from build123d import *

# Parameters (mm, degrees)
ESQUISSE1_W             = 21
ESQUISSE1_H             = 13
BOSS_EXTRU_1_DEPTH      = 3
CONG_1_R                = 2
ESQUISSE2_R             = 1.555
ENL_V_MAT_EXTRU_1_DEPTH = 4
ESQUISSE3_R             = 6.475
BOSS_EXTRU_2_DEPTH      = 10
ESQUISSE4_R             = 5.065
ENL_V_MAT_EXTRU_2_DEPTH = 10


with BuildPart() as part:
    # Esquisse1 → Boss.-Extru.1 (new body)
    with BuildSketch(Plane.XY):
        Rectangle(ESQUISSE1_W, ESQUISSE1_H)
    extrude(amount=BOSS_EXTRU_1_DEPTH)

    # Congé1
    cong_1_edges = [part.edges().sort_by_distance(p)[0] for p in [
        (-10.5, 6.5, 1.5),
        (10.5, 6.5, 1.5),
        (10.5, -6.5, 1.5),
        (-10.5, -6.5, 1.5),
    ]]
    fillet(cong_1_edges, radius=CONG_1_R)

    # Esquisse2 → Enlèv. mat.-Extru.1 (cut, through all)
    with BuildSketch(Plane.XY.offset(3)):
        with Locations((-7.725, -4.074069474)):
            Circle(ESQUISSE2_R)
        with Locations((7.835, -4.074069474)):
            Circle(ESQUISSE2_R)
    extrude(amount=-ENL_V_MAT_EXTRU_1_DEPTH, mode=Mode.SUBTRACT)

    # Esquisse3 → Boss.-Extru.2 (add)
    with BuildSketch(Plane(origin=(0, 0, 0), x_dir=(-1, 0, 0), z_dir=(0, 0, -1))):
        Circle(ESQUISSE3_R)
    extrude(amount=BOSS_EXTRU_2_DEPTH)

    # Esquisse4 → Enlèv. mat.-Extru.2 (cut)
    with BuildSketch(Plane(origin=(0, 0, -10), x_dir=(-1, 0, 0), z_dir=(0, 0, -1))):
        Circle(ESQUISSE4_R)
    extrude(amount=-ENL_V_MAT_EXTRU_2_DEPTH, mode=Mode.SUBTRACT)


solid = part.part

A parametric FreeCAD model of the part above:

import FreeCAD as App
import Part
import Sketcher
Q = App.Units.Quantity


def edges_at(feature, points):
    """Names of the edges that pass closest to the given points."""
    edges = feature.Shape.Edges
    near = lambda p: min(range(len(edges)), key=lambda i: edges[i].distToShape(Part.Vertex(*p))[0])
    return sorted({f"Edge{near(p) + 1}" for p in points})

doc = App.newDocument("Part")
body = doc.addObject("PartDesign::Body", "Body")

# Sketch on XY plane
sketch1 = doc.addObject("Sketcher::SketchObject", "Sketch")
body.addObject(sketch1)
sketch1.AttachmentSupport = (doc.XY_Plane, [""])
sketch1.MapMode = "FlatFace"
sketch1.addGeometry([
    Part.LineSegment(App.Vector(-10, 6, 0), App.Vector(-10, -6, 0)),
    Part.LineSegment(App.Vector(-10, -6, 0), App.Vector(10, -6, 0)),
    Part.LineSegment(App.Vector(10, -6, 0), App.Vector(10, 6, 0)),
    Part.LineSegment(App.Vector(10, 6, 0), App.Vector(-10, 6, 0)),
], False)
sketch1.addConstraint([
    Sketcher.Constraint("Coincident", 0, 2, 1, 1),
    Sketcher.Constraint("Coincident", 1, 2, 2, 1),
    Sketcher.Constraint("Coincident", 2, 2, 3, 1),
    Sketcher.Constraint("Coincident", 3, 2, 0, 1),
    Sketcher.Constraint("Vertical", 0),
    Sketcher.Constraint("Horizontal", 1),
    Sketcher.Constraint("Vertical", 2),
    Sketcher.Constraint("Horizontal", 3),
    Sketcher.Constraint("Symmetric", 0, 2, 2, 2, -1, 1),
    Sketcher.Constraint("DistanceX", 1, 1, 1, 2, Q("21 mm")),
    Sketcher.Constraint("DistanceY", 0, 2, 0, 1, Q("13 mm")),
])
pad1 = doc.addObject("PartDesign::Pad", "Pad")
body.addObject(pad1)
pad1.Profile = sketch1
pad1.Length = 3
doc.recompute()

fillet = doc.addObject("PartDesign::Fillet", "Fillet")
body.addObject(fillet)
fillet.Base = (pad1, edges_at(pad1, [
    (-10.5, 6.5, 1.5),
    (10.5, 6.5, 1.5),
    (10.5, -6.5, 1.5),
    (-10.5, -6.5, 1.5),
]))
fillet.Radius = 2

# Sketch on XY plane
sketch2 = doc.addObject("Sketcher::SketchObject", "Sketch001")
body.addObject(sketch2)
sketch2.AttachmentSupport = (doc.XY_Plane, [""])
sketch2.MapMode = "FlatFace"
sketch2.AttachmentOffset = App.Placement(App.Vector(0, 0, 3), App.Rotation())
sketch2.addGeometry([
    Part.Circle(App.Vector(-7.7, -4.1, 0), App.Vector(0, 0, 1), 1.6),
    Part.Circle(App.Vector(7.8, -4.1, 0), App.Vector(0, 0, 1), 1.6),
], False)
sketch2.addConstraint([
    Sketcher.Constraint("Equal", 0, 1),
    Sketcher.Constraint("Horizontal", 0, 3, 1, 3),
    Sketcher.Constraint("Diameter", 0, Q("3.11 mm")),
    Sketcher.Constraint("DistanceX", 0, 3, 1, 3, Q("15.56 mm")),
    Sketcher.Constraint("DistanceX", 0, 3, -1, 1, Q("7.725 mm")),
    Sketcher.Constraint("DistanceY", 0, 3, -1, 1, Q("4.074069 mm")),
])
pocket1 = doc.addObject("PartDesign::Pocket", "Pocket")
body.addObject(pocket1)
pocket1.Profile = sketch2
pocket1.Type = "ThroughAll"

# Sketch on XY plane
sketch3 = doc.addObject("Sketcher::SketchObject", "Sketch002")
body.addObject(sketch3)
sketch3.AttachmentSupport = (doc.XY_Plane, [""])
sketch3.MapMode = "FlatFace"
sketch3.addGeometry(Part.Circle(App.Vector(0, 0, 0), App.Vector(0, 0, 1), 6), False)
sketch3.addConstraint([
    Sketcher.Constraint("Coincident", 0, 3, -1, 1),
    Sketcher.Constraint("Diameter", 0, Q("12.95 mm")),
])
pad2 = doc.addObject("PartDesign::Pad", "Pad001")
body.addObject(pad2)
pad2.Profile = sketch3
pad2.Length = 10
pad2.Reversed = True

# Sketch on XY plane
sketch4 = doc.addObject("Sketcher::SketchObject", "Sketch003")
body.addObject(sketch4)
sketch4.AttachmentSupport = (doc.XY_Plane, [""])
sketch4.MapMode = "FlatFace"
sketch4.AttachmentOffset = App.Placement(App.Vector(0, 0, -10), App.Rotation())
sketch4.addGeometry(Part.Circle(App.Vector(0, 0, 0), App.Vector(0, 0, 1), 5), False)
sketch4.addConstraint([
    Sketcher.Constraint("Coincident", 0, 3, -1, 1),
    Sketcher.Constraint("Diameter", 0, Q("10.13 mm")),
])
pocket2 = doc.addObject("PartDesign::Pocket", "Pocket001")
body.addObject(pocket2)
pocket2.Profile = sketch4
pocket2.Length = 10
pocket2.Reversed = True

doc.recompute()
